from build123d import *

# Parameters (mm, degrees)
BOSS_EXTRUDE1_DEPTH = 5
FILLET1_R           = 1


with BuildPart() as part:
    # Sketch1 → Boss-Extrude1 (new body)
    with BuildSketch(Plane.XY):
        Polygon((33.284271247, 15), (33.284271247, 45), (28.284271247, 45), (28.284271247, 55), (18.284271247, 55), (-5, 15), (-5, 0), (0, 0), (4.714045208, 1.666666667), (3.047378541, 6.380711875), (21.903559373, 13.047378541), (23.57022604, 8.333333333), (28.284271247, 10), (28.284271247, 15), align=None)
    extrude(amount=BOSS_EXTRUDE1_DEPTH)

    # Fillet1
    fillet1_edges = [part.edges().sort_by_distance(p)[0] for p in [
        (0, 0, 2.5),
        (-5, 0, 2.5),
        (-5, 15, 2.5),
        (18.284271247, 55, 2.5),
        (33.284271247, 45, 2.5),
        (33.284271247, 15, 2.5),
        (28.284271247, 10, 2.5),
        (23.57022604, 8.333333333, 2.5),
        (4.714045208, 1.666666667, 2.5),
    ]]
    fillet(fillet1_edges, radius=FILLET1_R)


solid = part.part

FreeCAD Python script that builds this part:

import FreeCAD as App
import Part
import Sketcher
from FreeCAD import Vector


def edges_at(feature, points):
    """Names of the edges that pass closest to the given points."""
    edges = feature.Shape.Edges
    near = lambda p: min(range(len(edges)), key=lambda i: edges[i].distToShape(Part.Vertex(*p))[0])
    return sorted({f"Edge{near(p) + 1}" for p in points})


def add_polygon(sketch, points):
    """Adds a closed chain of lines whose ends are joined by coincident constraints."""
    first, n = sketch.GeometryCount, len(points)
    for a, b in zip(points, points[1:] + points[:1]):
        sketch.addGeometry(Part.LineSegment(App.Vector(*a, 0), App.Vector(*b, 0)), False)
    for i in range(n):
        sketch.addConstraint(Sketcher.Constraint("Coincident", first + i, 2, first + (i + 1) % n, 1))

doc = App.newDocument("Part")
body = doc.addObject("PartDesign::Body", "Body")

sketch1 = doc.addObject("Sketcher::SketchObject", "Sketch")
body.addObject(sketch1)
sketch1.AttachmentSupport = (doc.XY_Plane, [""])
sketch1.MapMode = "FlatFace"
add_polygon(sketch1, [(33.284271, 15), (33.284271, 45), (28.284271, 45), (28.284271, 55), (18.284271, 55), (-5, 15), (-5, 0), (0, 0), (4.714045, 1.666667), (3.047379, 6.380712), (21.903559, 13.047379), (23.570226, 8.333333), (28.284271, 10), (28.284271, 15)])
sketch1.addConstraint(Sketcher.Constraint("Vertical", 0))
sketch1.addConstraint(Sketcher.Constraint("Horizontal", 1))
sketch1.addConstraint(Sketcher.Constraint("Vertical", 2))
sketch1.addConstraint(Sketcher.Constraint("Horizontal", 3))
sketch1.addConstraint(Sketcher.Constraint("Vertical", 5))
sketch1.addConstraint(Sketcher.Constraint("Horizontal", 6))
sketch1.addConstraint(Sketcher.Constraint("Vertical", 12))
sketch1.addConstraint(Sketcher.Constraint("Horizontal", 13))
sketch1.addConstraint(Sketcher.Constraint("Coincident", 6, 2, -1, 1))
sketch1.addConstraint(Sketcher.Constraint("Perpendicular", 7, 8))
sketch1.addConstraint(Sketcher.Constraint("Perpendicular", 8, 9))
sketch1.addConstraint(Sketcher.Constraint("Perpendicular", 9, 10))
sketch1.addConstraint(Sketcher.Constraint("Perpendicular", 10, 11))
sketch1.addConstraint(Sketcher.Constraint("Horizontal", 4, 2, 12, 2))
sketch1.addConstraint(Sketcher.Constraint("Vertical", 2, 2, 11, 2))
sketch1.addConstraint(Sketcher.Constraint("Equal", 1, 6))
sketch1.addConstraint(Sketcher.Constraint("Equal", 3, 2))
sketch1.addConstraint(Sketcher.Constraint("Equal", 13, 12))
sketch1.addConstraint(Sketcher.Constraint("Equal", 7, 8))
sketch1.addConstraint(Sketcher.Constraint("Equal", 8, 10))
sketch1.addConstraint(Sketcher.Constraint("Equal", 10, 11))
sketch1.addConstraint(Sketcher.Constraint("DistanceX", 1, 2, 1, 1, 5.0))
sketch1.addConstraint(Sketcher.Constraint("DistanceX", 3, 2, 3, 1, 10.0))
sketch1.addConstraint(Sketcher.Constraint("DistanceY", 0, 1, 0, 2, 30.0))
sketch1.addConstraint(Sketcher.Constraint("DistanceY", 5, 2, 5, 1, 15.0))
sketch1.addConstraint(Sketcher.Constraint("Distance", 7, 5.0))
sketch1.addConstraint(Sketcher.Constraint("Distance", 9, 20.0))
pad1 = doc.addObject("PartDesign::Pad", "Pad")
body.addObject(pad1)
pad1.Profile = sketch1
pad1.Length = 5
doc.recompute()

fillet = doc.addObject("PartDesign::Fillet", "Fillet")
body.addObject(fillet)
fillet.Base = (pad1, edges_at(pad1, [
    (0, 0, 2.5),
    (-5, 0, 2.5),
    (-5, 15, 2.5),
    (18.284, 55, 2.5),
    (33.284, 45, 2.5),
    (33.284, 15, 2.5),
    (28.284, 10, 2.5),
    (23.57, 8.333, 2.5),
    (4.714, 1.667, 2.5),
]))
fillet.Radius = 1

doc.recompute()
